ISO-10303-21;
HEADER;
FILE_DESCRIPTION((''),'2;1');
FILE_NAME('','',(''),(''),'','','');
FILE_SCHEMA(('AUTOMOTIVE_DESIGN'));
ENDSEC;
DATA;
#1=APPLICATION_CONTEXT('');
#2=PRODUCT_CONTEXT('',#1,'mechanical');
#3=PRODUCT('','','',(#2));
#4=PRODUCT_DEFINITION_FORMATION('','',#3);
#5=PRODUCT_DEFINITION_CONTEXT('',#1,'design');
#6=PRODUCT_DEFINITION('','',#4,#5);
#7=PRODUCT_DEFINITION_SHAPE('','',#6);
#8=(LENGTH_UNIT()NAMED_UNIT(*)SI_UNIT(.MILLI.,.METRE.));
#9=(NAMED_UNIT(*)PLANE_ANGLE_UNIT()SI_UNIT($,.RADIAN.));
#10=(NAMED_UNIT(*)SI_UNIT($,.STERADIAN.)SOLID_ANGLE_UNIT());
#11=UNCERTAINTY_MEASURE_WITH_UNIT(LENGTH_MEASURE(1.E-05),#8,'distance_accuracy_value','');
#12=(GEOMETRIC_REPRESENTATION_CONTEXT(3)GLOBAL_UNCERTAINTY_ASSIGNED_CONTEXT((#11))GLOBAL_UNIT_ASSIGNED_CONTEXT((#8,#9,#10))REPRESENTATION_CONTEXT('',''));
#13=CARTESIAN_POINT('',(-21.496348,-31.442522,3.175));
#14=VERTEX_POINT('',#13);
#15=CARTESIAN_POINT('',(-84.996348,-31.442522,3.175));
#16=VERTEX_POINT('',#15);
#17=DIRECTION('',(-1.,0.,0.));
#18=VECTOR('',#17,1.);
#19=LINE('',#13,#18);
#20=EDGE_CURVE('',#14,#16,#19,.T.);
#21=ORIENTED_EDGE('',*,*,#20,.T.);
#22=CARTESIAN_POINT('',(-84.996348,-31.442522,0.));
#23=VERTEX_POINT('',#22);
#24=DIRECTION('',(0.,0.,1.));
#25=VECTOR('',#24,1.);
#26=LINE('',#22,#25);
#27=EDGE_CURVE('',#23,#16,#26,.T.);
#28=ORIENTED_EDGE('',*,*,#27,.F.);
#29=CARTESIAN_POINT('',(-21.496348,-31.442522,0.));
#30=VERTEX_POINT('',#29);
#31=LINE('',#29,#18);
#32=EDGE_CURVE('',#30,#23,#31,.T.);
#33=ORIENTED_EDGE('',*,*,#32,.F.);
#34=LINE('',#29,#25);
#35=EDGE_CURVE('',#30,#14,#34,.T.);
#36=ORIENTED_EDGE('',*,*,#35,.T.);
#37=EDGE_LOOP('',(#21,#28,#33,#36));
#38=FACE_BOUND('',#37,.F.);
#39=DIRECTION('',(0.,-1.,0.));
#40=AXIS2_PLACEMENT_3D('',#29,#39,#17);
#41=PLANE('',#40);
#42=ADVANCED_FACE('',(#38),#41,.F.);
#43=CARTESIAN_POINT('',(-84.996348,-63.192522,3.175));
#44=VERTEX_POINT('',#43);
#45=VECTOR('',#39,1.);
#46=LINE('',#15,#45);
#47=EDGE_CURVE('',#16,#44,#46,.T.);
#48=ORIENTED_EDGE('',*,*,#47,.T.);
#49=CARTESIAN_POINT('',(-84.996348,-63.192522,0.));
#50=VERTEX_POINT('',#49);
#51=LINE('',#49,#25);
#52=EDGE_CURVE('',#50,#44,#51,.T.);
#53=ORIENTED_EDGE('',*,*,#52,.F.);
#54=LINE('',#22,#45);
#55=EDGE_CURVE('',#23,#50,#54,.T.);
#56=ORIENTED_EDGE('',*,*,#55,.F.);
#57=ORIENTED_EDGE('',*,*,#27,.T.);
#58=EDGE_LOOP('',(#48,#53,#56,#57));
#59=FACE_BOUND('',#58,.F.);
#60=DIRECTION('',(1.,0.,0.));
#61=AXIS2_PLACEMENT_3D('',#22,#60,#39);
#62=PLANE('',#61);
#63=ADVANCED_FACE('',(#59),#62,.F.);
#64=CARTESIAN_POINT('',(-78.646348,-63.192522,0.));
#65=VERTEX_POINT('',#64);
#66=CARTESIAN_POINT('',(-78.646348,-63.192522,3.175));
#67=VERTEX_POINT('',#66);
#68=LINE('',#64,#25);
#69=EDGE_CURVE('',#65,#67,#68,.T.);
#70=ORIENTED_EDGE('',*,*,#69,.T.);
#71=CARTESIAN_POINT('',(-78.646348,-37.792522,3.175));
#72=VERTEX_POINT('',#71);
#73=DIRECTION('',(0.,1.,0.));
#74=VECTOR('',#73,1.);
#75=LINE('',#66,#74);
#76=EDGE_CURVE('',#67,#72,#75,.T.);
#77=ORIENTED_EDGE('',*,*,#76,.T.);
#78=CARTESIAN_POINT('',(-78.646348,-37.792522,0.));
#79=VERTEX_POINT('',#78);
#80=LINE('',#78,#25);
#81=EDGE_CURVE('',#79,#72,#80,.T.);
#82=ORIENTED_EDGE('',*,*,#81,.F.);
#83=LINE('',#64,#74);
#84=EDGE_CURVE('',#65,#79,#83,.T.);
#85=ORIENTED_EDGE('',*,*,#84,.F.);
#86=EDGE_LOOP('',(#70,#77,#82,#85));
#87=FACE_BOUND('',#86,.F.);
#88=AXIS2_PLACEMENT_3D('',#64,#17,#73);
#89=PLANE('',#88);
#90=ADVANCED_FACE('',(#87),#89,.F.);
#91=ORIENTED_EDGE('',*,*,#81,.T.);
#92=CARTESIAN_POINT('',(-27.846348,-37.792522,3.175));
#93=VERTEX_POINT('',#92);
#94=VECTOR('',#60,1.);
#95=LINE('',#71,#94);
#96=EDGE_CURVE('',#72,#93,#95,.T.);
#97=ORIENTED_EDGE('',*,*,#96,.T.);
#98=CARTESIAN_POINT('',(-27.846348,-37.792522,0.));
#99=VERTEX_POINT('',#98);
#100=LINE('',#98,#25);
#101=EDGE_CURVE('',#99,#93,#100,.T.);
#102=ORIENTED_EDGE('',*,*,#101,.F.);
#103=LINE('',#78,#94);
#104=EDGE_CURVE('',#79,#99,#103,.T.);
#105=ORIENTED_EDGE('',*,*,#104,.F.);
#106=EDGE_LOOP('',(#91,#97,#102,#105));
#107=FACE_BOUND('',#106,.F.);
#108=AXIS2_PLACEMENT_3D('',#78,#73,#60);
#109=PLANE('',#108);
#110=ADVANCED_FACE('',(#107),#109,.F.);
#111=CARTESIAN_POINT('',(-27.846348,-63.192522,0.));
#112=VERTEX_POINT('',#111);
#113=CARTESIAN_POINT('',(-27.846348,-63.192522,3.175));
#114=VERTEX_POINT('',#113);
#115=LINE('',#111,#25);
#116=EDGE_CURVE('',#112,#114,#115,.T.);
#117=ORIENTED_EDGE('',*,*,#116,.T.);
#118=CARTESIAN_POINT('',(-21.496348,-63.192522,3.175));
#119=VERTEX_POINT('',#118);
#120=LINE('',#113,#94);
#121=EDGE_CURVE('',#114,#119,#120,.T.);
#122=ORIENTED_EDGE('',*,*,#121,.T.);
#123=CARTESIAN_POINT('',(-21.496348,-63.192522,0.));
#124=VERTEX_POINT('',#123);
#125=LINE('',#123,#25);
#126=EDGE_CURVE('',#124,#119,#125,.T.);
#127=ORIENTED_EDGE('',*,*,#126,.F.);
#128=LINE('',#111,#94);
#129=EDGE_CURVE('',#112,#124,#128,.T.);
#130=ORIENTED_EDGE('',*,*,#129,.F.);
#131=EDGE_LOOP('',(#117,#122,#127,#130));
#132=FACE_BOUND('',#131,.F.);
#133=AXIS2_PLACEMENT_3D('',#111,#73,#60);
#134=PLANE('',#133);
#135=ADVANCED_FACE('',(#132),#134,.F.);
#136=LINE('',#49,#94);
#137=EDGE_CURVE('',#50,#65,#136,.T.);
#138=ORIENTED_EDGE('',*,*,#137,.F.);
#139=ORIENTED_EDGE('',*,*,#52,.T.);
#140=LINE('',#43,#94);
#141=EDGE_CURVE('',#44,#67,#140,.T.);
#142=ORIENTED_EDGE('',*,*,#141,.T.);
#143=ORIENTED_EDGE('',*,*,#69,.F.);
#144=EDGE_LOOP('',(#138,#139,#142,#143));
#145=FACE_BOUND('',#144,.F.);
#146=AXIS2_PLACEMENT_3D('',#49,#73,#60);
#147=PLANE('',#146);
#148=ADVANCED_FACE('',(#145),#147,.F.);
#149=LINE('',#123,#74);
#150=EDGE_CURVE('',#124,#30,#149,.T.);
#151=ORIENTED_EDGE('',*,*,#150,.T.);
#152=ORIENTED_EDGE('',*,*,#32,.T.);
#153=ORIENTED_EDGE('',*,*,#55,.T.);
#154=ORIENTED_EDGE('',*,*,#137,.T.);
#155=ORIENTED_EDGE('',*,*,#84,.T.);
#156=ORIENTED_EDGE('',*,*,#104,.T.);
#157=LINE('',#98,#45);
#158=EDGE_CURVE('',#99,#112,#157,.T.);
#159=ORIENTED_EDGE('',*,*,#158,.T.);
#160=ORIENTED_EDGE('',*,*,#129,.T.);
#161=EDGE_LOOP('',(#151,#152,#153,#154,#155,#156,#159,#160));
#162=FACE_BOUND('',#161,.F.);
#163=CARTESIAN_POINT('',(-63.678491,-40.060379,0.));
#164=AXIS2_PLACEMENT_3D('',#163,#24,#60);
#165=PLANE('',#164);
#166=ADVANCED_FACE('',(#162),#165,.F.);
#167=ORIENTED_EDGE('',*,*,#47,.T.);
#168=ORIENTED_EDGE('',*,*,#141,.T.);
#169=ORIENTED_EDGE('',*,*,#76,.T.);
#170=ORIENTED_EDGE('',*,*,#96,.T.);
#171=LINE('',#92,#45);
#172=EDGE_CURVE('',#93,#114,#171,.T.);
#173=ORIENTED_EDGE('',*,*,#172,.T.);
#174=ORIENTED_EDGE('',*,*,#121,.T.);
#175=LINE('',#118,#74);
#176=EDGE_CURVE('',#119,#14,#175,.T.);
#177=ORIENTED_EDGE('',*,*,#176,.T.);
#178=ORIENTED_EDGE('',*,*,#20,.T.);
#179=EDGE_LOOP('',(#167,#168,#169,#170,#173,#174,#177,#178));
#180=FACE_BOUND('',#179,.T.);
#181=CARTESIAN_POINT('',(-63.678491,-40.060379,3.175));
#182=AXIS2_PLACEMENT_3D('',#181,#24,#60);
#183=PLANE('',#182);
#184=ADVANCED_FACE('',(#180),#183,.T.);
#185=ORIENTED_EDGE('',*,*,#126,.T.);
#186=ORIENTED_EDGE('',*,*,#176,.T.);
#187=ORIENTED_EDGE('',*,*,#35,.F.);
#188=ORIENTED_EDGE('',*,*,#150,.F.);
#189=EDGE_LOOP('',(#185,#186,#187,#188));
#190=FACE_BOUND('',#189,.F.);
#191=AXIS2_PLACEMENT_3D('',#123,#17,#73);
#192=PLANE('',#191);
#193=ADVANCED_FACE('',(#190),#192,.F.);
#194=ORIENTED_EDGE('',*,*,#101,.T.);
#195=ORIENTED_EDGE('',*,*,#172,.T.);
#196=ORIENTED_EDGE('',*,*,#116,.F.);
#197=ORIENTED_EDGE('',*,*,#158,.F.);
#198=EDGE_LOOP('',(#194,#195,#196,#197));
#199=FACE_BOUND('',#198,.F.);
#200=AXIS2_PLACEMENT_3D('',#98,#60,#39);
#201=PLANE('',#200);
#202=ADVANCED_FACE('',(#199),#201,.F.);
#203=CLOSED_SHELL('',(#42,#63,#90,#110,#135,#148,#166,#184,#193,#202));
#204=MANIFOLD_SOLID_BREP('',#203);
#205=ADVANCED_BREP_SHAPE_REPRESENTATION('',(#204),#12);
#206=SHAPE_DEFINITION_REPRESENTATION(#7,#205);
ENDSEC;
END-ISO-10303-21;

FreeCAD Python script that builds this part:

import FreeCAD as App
import Part
import Sketcher

V = App.Vector
Q = App.Units.Quantity

doc = App.newDocument("Part")
params = doc.addObject("Spreadsheet::Sheet", "Params")
for row, (alias, value) in enumerate([
    ("sketch1_width", "2 in"),
    ("sketch1_height", "1 in"),
    ("sketch1_width2", "2.5 in"),
    ("sketch1_height2", "1.25 in"),
    ("pad1_length", "0.125 in"),
], start=1):
    params.set(f"A{row}", alias)
    params.set(f"B{row}", "=" + value)
    params.setAlias(f"B{row}", alias)

body = doc.addObject("PartDesign::Body", "Body")

# Sketch on XY plane
sketch1 = body.newObject("Sketcher::SketchObject", "Sketch")
sketch1.AttachmentSupport = (doc.getObject("XY_Plane"), [""])
sketch1.MapMode = "FlatFace"
sketch1.addGeometry(Part.LineSegment(V(-85, -31, 0), V(-85, -63, 0)), False)
sketch1.addGeometry(Part.LineSegment(V(-85, -63, 0), V(-79, -63, 0)), False)
sketch1.addGeometry(Part.LineSegment(V(-79, -63, 0), V(-79, -38, 0)), False)
sketch1.addGeometry(Part.LineSegment(V(-79, -38, 0), V(-28, -38, 0)), False)
sketch1.addGeometry(Part.LineSegment(V(-28, -38, 0), V(-28, -63, 0)), False)
sketch1.addGeometry(Part.LineSegment(V(-28, -63, 0), V(-21, -63, 0)), False)
sketch1.addGeometry(Part.LineSegment(V(-21, -63, 0), V(-21, -31, 0)), False)
sketch1.addGeometry(Part.LineSegment(V(-21, -31, 0), V(-85, -31, 0)), False)
sketch1.addConstraint(Sketcher.Constraint("Coincident", 0, 2, 1, 1))
sketch1.addConstraint(Sketcher.Constraint("Coincident", 1, 2, 2, 1))
sketch1.addConstraint(Sketcher.Constraint("Coincident", 2, 2, 3, 1))
sketch1.addConstraint(Sketcher.Constraint("Coincident", 3, 2, 4, 1))
sketch1.addConstraint(Sketcher.Constraint("Coincident", 4, 2, 5, 1))
sketch1.addConstraint(Sketcher.Constraint("Coincident", 5, 2, 6, 1))
sketch1.addConstraint(Sketcher.Constraint("Coincident", 6, 2, 7, 1))
sketch1.addConstraint(Sketcher.Constraint("Coincident", 7, 2, 0, 1))
sketch1.addConstraint(Sketcher.Constraint("Vertical", 0))
sketch1.addConstraint(Sketcher.Constraint("Horizontal", 1))
sketch1.addConstraint(Sketcher.Constraint("Vertical", 2))
sketch1.addConstraint(Sketcher.Constraint("Horizontal", 3))
sketch1.addConstraint(Sketcher.Constraint("Vertical", 4))
sketch1.addConstraint(Sketcher.Constraint("Horizontal", 5))
sketch1.addConstraint(Sketcher.Constraint("Vertical", 6))
sketch1.addConstraint(Sketcher.Constraint("Horizontal", 7))
sketch1.addConstraint(Sketcher.Constraint("Horizontal", 1, 2, 4, 2))
sketch1.addConstraint(Sketcher.Constraint("Equal", 1, 5))
sketch1.addConstraint(Sketcher.Constraint("DistanceX", 3, 1, 3, 2, Q("2 in")))
sketch1.addConstraint(Sketcher.Constraint("DistanceY", 2, 1, 2, 2, Q("1 in")))
sketch1.addConstraint(Sketcher.Constraint("DistanceX", 7, 2, 7, 1, Q("2.5 in")))
sketch1.addConstraint(Sketcher.Constraint("DistanceY", 0, 2, 0, 1, Q("1.25 in")))
sketch1.addConstraint(Sketcher.Constraint("DistanceY", 0, 2, -1, 1, 63.192522))
sketch1.addConstraint(Sketcher.Constraint("DistanceX", 1, 2, -1, 1, 78.646348))
sketch1.setExpression("Constraints[18]", "Params.sketch1_width")
sketch1.setExpression("Constraints[19]", "Params.sketch1_height")
sketch1.setExpression("Constraints[20]", "Params.sketch1_width2")
sketch1.setExpression("Constraints[21]", "Params.sketch1_height2")
pad1 = body.newObject("PartDesign::Pad", "Pad")
pad1.Profile = sketch1
pad1.setExpression("Length", "Params.pad1_length")

doc.recompute()
